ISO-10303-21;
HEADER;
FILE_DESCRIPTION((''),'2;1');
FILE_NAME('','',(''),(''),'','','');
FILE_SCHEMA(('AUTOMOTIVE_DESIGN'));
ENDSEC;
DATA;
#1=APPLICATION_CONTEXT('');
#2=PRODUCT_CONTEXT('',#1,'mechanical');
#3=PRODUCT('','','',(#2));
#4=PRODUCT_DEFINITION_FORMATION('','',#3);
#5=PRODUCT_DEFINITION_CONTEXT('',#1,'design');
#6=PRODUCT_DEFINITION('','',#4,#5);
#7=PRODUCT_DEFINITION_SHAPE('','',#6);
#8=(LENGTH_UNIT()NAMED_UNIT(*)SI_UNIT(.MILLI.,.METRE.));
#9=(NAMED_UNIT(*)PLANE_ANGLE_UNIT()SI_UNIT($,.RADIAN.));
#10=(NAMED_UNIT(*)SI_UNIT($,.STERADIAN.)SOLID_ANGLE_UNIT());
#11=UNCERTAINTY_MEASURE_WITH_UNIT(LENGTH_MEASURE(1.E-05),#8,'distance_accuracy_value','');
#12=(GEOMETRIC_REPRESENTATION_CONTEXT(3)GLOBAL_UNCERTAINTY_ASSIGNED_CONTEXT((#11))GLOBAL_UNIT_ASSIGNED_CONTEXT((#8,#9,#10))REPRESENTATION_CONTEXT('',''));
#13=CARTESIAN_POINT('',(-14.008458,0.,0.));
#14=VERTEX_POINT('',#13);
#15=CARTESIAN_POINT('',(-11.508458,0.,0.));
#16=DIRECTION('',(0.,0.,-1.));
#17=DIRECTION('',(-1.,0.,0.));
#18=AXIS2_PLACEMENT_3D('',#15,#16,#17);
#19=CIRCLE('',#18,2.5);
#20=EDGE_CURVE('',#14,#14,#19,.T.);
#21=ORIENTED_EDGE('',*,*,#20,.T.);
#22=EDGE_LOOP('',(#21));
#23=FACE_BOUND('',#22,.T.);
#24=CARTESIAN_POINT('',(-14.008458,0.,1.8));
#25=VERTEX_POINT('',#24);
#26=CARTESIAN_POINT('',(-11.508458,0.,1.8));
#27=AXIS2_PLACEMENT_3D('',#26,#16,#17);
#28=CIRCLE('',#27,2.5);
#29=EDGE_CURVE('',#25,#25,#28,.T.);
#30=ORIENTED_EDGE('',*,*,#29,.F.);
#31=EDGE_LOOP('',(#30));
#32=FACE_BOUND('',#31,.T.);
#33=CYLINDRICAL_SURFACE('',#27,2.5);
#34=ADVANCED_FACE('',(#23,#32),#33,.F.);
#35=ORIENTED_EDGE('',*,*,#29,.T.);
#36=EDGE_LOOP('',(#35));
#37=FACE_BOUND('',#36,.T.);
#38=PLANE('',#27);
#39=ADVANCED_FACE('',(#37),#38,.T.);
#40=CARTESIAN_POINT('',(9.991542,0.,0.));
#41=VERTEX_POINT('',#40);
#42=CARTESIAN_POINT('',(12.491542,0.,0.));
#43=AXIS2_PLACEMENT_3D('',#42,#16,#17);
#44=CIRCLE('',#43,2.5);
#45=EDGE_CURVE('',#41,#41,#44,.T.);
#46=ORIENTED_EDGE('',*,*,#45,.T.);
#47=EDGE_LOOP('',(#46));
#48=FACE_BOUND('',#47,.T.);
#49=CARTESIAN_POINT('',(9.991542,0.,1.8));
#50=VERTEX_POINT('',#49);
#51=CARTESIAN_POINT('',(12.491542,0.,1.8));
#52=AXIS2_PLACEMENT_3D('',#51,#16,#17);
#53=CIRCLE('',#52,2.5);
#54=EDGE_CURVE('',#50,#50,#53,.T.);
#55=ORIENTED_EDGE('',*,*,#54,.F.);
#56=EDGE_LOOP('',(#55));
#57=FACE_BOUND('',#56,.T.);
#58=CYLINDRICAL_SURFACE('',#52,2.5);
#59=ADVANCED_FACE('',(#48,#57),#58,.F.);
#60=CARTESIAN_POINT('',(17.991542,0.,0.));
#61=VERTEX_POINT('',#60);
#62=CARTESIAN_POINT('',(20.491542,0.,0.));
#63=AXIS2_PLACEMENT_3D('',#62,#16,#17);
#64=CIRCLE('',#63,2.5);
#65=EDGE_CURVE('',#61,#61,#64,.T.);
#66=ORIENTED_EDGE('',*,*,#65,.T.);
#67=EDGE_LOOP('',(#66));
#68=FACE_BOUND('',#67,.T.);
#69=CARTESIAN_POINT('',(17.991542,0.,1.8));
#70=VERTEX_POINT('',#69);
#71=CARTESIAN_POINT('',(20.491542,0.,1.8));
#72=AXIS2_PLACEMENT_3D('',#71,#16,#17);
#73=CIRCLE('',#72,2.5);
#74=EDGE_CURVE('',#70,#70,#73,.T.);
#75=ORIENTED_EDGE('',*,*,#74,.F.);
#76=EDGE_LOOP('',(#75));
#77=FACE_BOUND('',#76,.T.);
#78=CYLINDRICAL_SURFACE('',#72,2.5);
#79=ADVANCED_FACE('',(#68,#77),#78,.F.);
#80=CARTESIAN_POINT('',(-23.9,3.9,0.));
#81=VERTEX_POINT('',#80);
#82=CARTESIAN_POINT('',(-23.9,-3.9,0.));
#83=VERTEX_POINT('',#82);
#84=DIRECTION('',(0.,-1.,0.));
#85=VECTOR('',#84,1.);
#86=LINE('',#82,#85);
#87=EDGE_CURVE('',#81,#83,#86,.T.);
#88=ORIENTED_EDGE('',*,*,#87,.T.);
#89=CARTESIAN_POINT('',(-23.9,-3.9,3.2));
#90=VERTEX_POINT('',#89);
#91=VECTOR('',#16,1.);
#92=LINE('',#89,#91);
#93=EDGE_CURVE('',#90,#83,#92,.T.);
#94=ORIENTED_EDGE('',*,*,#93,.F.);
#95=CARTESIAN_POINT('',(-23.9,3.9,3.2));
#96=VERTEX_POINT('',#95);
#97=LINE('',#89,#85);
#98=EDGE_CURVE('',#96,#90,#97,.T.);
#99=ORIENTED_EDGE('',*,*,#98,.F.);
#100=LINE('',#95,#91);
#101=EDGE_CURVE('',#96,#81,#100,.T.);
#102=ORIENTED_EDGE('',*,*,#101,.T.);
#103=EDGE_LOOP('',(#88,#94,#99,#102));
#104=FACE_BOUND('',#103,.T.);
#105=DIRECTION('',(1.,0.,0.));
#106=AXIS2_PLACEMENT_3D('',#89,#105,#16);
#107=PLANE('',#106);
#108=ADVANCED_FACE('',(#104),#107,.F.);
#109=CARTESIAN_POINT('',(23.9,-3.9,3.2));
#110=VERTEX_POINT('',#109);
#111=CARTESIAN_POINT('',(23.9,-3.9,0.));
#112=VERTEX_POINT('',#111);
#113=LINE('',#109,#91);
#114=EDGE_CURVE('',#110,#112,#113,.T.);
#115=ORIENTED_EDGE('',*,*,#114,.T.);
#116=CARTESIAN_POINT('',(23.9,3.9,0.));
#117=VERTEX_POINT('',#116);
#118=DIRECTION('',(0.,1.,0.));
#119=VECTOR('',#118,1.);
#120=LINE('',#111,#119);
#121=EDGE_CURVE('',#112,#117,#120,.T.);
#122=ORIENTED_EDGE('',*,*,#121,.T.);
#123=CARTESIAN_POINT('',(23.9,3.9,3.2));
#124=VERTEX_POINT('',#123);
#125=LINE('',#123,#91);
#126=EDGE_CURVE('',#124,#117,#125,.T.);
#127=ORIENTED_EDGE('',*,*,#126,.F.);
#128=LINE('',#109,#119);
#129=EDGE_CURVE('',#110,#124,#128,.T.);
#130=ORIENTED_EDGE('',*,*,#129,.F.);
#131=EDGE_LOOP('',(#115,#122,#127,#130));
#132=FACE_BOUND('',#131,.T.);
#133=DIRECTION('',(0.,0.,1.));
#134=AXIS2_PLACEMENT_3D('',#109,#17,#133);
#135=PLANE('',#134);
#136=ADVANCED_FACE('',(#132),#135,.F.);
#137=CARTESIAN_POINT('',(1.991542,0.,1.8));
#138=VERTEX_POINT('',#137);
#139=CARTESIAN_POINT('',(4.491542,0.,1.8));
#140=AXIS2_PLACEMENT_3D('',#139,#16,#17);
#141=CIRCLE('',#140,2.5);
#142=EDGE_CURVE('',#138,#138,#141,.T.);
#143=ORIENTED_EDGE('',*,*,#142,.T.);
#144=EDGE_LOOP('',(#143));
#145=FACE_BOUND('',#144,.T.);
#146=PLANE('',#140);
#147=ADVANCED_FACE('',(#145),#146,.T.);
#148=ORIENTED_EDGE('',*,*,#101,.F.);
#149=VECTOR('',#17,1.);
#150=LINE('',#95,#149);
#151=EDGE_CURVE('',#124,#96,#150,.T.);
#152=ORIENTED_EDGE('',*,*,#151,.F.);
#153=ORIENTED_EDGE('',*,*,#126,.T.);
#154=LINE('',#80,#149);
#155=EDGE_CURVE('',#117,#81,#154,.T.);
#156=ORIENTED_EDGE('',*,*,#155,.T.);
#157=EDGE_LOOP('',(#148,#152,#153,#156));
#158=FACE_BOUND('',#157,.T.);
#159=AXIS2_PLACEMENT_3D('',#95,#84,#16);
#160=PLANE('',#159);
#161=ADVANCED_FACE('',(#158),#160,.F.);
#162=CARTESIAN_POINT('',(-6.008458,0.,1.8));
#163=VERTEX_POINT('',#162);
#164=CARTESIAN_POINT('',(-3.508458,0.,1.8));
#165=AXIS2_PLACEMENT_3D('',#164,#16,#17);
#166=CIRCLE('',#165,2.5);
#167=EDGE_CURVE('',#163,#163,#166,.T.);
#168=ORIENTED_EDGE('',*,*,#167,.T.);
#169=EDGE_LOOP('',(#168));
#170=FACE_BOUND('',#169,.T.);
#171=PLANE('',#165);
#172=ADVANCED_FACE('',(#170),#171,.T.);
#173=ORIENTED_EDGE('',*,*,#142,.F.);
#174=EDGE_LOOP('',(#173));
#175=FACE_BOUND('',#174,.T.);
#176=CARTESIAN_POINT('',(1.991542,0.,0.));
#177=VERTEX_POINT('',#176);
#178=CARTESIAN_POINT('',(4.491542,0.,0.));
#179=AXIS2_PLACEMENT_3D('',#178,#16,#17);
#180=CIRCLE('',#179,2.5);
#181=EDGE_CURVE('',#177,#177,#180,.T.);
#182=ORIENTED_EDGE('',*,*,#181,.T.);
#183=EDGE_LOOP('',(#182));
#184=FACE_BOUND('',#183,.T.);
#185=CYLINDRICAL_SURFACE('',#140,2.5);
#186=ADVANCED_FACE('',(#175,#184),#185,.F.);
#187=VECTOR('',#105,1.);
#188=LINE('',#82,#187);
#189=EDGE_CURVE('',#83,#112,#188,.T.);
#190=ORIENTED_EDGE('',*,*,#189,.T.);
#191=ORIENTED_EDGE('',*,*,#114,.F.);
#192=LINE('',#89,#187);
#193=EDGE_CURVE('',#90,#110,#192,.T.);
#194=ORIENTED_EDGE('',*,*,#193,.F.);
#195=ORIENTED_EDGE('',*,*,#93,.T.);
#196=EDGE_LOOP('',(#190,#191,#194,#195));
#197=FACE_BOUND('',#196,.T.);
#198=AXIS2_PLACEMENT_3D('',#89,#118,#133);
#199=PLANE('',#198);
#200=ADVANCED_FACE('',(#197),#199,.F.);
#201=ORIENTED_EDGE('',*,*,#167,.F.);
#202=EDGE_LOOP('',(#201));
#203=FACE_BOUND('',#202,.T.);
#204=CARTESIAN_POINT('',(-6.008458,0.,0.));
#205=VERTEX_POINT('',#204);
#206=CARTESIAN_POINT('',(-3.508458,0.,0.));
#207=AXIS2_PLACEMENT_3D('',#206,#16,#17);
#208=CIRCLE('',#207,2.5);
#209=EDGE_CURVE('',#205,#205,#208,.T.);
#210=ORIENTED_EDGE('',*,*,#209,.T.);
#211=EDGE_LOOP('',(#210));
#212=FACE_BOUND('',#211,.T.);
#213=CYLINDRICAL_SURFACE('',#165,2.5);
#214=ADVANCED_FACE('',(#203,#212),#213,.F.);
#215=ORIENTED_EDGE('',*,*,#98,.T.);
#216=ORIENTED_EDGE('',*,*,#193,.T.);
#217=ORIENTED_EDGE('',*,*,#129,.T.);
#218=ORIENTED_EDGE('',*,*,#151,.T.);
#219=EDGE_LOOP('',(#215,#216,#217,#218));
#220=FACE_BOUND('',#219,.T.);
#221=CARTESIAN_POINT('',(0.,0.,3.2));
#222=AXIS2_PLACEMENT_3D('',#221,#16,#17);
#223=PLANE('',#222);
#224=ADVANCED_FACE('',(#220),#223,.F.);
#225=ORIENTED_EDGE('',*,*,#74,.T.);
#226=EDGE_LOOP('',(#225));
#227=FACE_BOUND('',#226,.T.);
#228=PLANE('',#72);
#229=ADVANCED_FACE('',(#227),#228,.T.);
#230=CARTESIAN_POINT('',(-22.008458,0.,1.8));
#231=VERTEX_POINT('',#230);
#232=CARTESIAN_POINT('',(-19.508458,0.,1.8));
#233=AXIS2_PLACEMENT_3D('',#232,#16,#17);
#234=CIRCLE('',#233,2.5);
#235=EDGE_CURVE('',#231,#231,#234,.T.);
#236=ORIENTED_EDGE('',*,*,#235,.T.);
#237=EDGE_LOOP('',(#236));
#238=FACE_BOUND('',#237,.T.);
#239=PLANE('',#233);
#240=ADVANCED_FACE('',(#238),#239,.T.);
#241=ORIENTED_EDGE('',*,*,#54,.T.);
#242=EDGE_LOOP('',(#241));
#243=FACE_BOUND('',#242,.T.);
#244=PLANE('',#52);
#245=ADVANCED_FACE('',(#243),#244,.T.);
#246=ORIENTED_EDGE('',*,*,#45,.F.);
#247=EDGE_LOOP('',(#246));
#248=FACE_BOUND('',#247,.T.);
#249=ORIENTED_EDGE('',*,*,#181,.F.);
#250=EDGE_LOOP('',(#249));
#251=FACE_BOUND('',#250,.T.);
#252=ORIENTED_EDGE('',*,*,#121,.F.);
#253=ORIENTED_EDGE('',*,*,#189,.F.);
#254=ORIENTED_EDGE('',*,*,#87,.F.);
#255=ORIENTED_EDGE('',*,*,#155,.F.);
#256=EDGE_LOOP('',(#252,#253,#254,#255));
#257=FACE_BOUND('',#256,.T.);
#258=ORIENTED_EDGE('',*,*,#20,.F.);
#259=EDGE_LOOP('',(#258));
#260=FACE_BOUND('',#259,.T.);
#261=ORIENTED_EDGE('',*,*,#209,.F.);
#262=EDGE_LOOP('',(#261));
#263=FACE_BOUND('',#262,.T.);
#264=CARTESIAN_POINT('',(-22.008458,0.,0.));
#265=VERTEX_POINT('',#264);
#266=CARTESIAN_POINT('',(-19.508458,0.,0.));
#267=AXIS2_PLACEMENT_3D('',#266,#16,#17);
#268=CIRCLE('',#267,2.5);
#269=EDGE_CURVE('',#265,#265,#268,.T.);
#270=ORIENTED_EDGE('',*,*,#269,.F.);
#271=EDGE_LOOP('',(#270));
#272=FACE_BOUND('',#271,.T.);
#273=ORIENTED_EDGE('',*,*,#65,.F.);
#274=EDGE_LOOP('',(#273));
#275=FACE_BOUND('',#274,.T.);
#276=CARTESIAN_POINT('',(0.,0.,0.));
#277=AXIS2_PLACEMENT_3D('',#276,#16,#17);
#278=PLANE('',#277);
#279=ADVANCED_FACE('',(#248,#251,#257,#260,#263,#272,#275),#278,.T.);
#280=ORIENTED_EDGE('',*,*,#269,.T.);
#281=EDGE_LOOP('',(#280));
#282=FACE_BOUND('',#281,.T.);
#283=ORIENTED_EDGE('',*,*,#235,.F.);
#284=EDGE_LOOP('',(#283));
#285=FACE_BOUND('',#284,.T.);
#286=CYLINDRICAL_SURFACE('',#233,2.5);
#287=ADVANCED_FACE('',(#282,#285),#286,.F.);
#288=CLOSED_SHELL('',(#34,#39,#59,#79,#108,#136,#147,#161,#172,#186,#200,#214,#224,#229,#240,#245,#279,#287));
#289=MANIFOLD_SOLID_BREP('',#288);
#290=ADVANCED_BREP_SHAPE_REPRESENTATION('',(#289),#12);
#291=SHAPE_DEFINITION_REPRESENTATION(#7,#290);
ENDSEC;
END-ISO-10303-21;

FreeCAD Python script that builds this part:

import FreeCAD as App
import Part
import Sketcher

V = App.Vector
Q = App.Units.Quantity


def add_polygon(sketch, points):
    """Adds a closed chain of lines whose ends are joined by coincident constraints."""
    first, n = sketch.GeometryCount, len(points)
    for a, b in zip(points, points[1:] + points[:1]):
        sketch.addGeometry(Part.LineSegment(App.Vector(*a, 0), App.Vector(*b, 0)), False)
    for i in range(n):
        sketch.addConstraint(Sketcher.Constraint("Coincident", first + i, 2, first + (i + 1) % n, 1))

doc = App.newDocument("Part")
params = doc.addObject("Spreadsheet::Sheet", "Params")
for row, (alias, value) in enumerate([
    ("sketch1_width", "47.8 mm"),
    ("sketch1_height", "7.8 mm"),
    ("pad1_length", "3.2 mm"),
    ("sketch2_diameter", "5 mm"),
    ("pocket1_length", "1.8 mm"),
], start=1):
    params.set(f"A{row}", alias)
    params.set(f"B{row}", "=" + value)
    params.setAlias(f"B{row}", alias)

body = doc.addObject("PartDesign::Body", "Body")

sketch1 = doc.addObject("Sketcher::SketchObject", "Sketch")
body.addObject(sketch1)
sketch1.AttachmentSupport = (doc.XY_Plane, [""])
sketch1.MapMode = "FlatFace"
add_polygon(sketch1, [(-24, 4), (-24, -4), (24, -4), (24, 4)])
sketch1.addConstraint(Sketcher.Constraint("Vertical", 0))
sketch1.addConstraint(Sketcher.Constraint("Horizontal", 1))
sketch1.addConstraint(Sketcher.Constraint("Vertical", 2))
sketch1.addConstraint(Sketcher.Constraint("Horizontal", 3))
sketch1.addConstraint(Sketcher.Constraint("Symmetric", 0, 2, 2, 2, -1, 1))
sketch1.addConstraint(Sketcher.Constraint("DistanceX", 1, 1, 1, 2, Q("47.8 mm")))
sketch1.addConstraint(Sketcher.Constraint("DistanceY", 0, 2, 0, 1, Q("7.8 mm")))
sketch1.setExpression("Constraints[9]", "Params.sketch1_width")
sketch1.setExpression("Constraints[10]", "Params.sketch1_height")
pad1 = doc.addObject("PartDesign::Pad", "Pad")
body.addObject(pad1)
pad1.Profile = sketch1
pad1.setExpression("Length", "Params.pad1_length")

sketch2 = doc.addObject("Sketcher::SketchObject", "Sketch001")
body.addObject(sketch2)
sketch2.AttachmentSupport = (doc.XY_Plane, [""])
sketch2.MapMode = "FlatFace"
sketch2.addGeometry(Part.Circle(V(20.5, 0, 0), V(0, 0, 1), 2.5), False)
sketch2.addGeometry(Part.Circle(V(12.5, 0, 0), V(0, 0, 1), 2.5), False)
sketch2.addGeometry(Part.Circle(V(4.5, 0, 0), V(0, 0, 1), 2.5), False)
sketch2.addGeometry(Part.Circle(V(-3.5, 0, 0), V(0, 0, 1), 2.5), False)
sketch2.addGeometry(Part.Circle(V(-11.5, 0, 0), V(0, 0, 1), 2.5), False)
sketch2.addGeometry(Part.Circle(V(-19.5, 0, 0), V(0, 0, 1), 2.5), False)
sketch2.addConstraint(Sketcher.Constraint("Equal", 0, 1))
sketch2.addConstraint(Sketcher.Constraint("Equal", 1, 2))
sketch2.addConstraint(Sketcher.Constraint("Equal", 2, 3))
sketch2.addConstraint(Sketcher.Constraint("Equal", 3, 4))
sketch2.addConstraint(Sketcher.Constraint("Equal", 4, 5))
sketch2.addConstraint(Sketcher.Constraint("PointOnObject", 0, 3, -1))
sketch2.addConstraint(Sketcher.Constraint("PointOnObject", 1, 3, -1))
sketch2.addConstraint(Sketcher.Constraint("PointOnObject", 2, 3, -1))
sketch2.addConstraint(Sketcher.Constraint("PointOnObject", 3, 3, -1))
sketch2.addConstraint(Sketcher.Constraint("PointOnObject", 4, 3, -1))
sketch2.addConstraint(Sketcher.Constraint("PointOnObject", 5, 3, -1))
sketch2.addConstraint(Sketcher.Constraint("Diameter", 0, Q("5 mm")))
sketch2.addConstraint(Sketcher.Constraint("DistanceX", 1, 3, 0, 3, Q("8 mm")))
sketch2.addConstraint(Sketcher.Constraint("DistanceX", 2, 3, 1, 3, Q("8 mm")))
sketch2.addConstraint(Sketcher.Constraint("DistanceX", 3, 3, 2, 3, Q("8 mm")))
sketch2.addConstraint(Sketcher.Constraint("DistanceX", 4, 3, 3, 3, Q("8 mm")))
sketch2.addConstraint(Sketcher.Constraint("DistanceX", 5, 3, 4, 3, Q("8 mm")))
sketch2.addConstraint(Sketcher.Constraint("DistanceX", -1, 1, 0, 3, Q("20.491542 mm")))
sketch2.setExpression("Constraints[11]", "Params.sketch2_diameter")
pocket1 = doc.addObject("PartDesign::Pocket", "Pocket")
body.addObject(pocket1)
pocket1.Profile = sketch2
pocket1.setExpression("Length", "Params.pocket1_length")
pocket1.Reversed = True

doc.recompute()
